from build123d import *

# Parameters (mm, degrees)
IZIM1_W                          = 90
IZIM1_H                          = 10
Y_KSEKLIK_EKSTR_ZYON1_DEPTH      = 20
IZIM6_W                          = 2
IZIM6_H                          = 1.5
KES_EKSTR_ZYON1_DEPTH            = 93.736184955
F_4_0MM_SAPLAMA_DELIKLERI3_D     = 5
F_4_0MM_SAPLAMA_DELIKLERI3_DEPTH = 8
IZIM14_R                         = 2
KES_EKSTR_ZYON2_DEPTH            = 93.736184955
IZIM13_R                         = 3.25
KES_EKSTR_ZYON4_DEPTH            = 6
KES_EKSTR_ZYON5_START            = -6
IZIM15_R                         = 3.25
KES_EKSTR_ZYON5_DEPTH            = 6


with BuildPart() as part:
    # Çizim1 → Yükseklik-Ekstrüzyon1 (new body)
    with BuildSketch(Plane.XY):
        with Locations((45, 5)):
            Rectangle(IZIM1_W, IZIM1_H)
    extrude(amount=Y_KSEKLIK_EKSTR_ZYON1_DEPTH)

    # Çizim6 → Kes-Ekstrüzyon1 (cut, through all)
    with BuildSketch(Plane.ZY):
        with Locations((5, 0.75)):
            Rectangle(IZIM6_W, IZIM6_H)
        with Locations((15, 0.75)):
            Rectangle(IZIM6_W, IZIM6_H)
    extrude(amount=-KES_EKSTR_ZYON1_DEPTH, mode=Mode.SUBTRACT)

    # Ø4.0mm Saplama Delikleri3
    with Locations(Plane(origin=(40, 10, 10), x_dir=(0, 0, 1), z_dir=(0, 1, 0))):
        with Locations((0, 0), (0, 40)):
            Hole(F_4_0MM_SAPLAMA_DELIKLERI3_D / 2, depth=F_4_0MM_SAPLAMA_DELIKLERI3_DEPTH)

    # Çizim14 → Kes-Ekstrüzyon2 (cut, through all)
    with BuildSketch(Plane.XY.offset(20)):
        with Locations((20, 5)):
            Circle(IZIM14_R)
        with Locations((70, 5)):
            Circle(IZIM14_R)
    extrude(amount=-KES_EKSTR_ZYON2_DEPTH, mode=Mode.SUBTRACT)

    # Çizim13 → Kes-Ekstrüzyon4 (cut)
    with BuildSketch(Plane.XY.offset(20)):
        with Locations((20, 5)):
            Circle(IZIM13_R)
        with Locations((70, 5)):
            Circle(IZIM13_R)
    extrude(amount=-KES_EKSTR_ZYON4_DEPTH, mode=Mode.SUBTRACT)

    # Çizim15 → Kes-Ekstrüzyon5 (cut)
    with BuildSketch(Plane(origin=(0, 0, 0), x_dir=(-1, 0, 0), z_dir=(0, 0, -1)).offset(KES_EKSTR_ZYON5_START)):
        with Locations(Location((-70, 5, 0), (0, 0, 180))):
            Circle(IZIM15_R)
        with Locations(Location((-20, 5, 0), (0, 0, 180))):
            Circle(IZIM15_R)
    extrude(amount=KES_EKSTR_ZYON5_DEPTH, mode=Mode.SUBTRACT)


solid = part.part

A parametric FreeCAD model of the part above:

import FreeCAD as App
import Part
import Sketcher
from FreeCAD import Vector
Q = App.Units.Quantity


def add_polygon(sketch, points):
    """Adds a closed chain of lines whose ends are joined by coincident constraints."""
    first, n = sketch.GeometryCount, len(points)
    for a, b in zip(points, points[1:] + points[:1]):
        sketch.addGeometry(Part.LineSegment(App.Vector(*a, 0), App.Vector(*b, 0)), False)
    for i in range(n):
        sketch.addConstraint(Sketcher.Constraint("Coincident", first + i, 2, first + (i + 1) % n, 1))

doc = App.newDocument("Part")
body = doc.addObject("PartDesign::Body", "Body")

sketch1 = body.newObject("Sketcher::SketchObject", "Sketch")
sketch1.AttachmentSupport = (doc.getObject("XY_Plane"), [""])
sketch1.MapMode = "FlatFace"
add_polygon(sketch1, [(0, 10), (0, 0), (90, 0), (90, 10)])
sketch1.addConstraint([
    Sketcher.Constraint("Vertical", 0),
    Sketcher.Constraint("Horizontal", 1),
    Sketcher.Constraint("Vertical", 2),
    Sketcher.Constraint("Horizontal", 3),
    Sketcher.Constraint("Coincident", 0, 2, -1, 1),
    Sketcher.Constraint("DistanceX", 1, 1, 1, 2, Q("90 mm")),
    Sketcher.Constraint("DistanceY", 0, 2, 0, 1, Q("10 mm")),
])
pad1 = body.newObject("PartDesign::Pad", "Pad")
pad1.Profile = sketch1
pad1.Length = 20

sketch2 = body.newObject("Sketcher::SketchObject", "Sketch001")
sketch2.AttachmentSupport = (doc.getObject("YZ_Plane"), [""])
sketch2.MapMode = "FlatFace"
add_polygon(sketch2, [(1.5, 4), (0, 4), (0, 6), (1.5, 6)])
add_polygon(sketch2, [(1.5, 14), (0, 14), (0, 16), (1.5, 16)])
sketch2.addConstraint([
    Sketcher.Constraint("Horizontal", 0),
    Sketcher.Constraint("Vertical", 1),
    Sketcher.Constraint("Horizontal", 2),
    Sketcher.Constraint("Vertical", 3),
    Sketcher.Constraint("Horizontal", 4),
    Sketcher.Constraint("Vertical", 5),
    Sketcher.Constraint("Horizontal", 6),
    Sketcher.Constraint("Vertical", 7),
    Sketcher.Constraint("PointOnObject", 0, 2, -2),
    Sketcher.Constraint("PointOnObject", 4, 2, -2),
    Sketcher.Constraint("Vertical", 3, 2, 6, 2),
    Sketcher.Constraint("Equal", 3, 5),
    Sketcher.Constraint("DistanceY", 1, 1, 1, 2, Q("2 mm")),
    Sketcher.Constraint("DistanceX", 0, 2, 0, 1, Q("1.5 mm")),
    Sketcher.Constraint("DistanceY", -1, 1, 0, 2, Q("4 mm")),
    Sketcher.Constraint("DistanceY", -1, 1, 4, 2, Q("14 mm")),
])
pocket1 = body.newObject("PartDesign::Pocket", "Pocket")
pocket1.Profile = sketch2
pocket1.Type = "ThroughAll"
pocket1.Reversed = True

sketch3 = body.newObject("Sketcher::SketchObject", "Sketch002")
sketch3.AttachmentSupport = (doc.getObject("XZ_Plane"), [""])
sketch3.MapMode = "FlatFace"
sketch3.AttachmentOffset = App.Placement(Vector(0, 0, -10), App.Rotation())
sketch3.addGeometry([
    Part.Circle(Vector(40, 10, 0), Vector(0, 0, 1), 2.5),
    Part.Circle(Vector(80, 10, 0), Vector(0, 0, 1), 2.5),
], False)
sketch3.addConstraint([
    Sketcher.Constraint("Equal", 0, 1),
    Sketcher.Constraint("Horizontal", 0, 3, 1, 3),
    Sketcher.Constraint("Diameter", 0, Q("5 mm")),
    Sketcher.Constraint("DistanceX", -1, 1, 0, 3, Q("40 mm")),
    Sketcher.Constraint("DistanceY", -1, 1, 0, 3, Q("10 mm")),
    Sketcher.Constraint("DistanceX", -1, 1, 1, 3, Q("80 mm")),
])
doc.recompute()
hole = body.newObject("PartDesign::Hole", "Hole")
hole.Profile = sketch3
hole.ThreadType = "None"
hole.Diameter = 5
hole.DepthType = "Dimension"
hole.Depth = 8
hole.DrillPoint = "Flat"
hole.Reversed = True

sketch4 = body.newObject("Sketcher::SketchObject", "Sketch003")
sketch4.AttachmentSupport = (doc.getObject("XY_Plane"), [""])
sketch4.MapMode = "FlatFace"
sketch4.AttachmentOffset = App.Placement(Vector(0, 0, 20), App.Rotation())
sketch4.addGeometry([
    Part.Circle(Vector(20, 5, 0), Vector(0, 0, 1), 2),
    Part.Circle(Vector(70, 5, 0), Vector(0, 0, 1), 2),
], False)
sketch4.addConstraint([
    Sketcher.Constraint("Equal", 0, 1),
    Sketcher.Constraint("Horizontal", 0, 3, 1, 3),
    Sketcher.Constraint("Diameter", 0, Q("4 mm")),
    Sketcher.Constraint("DistanceX", -1, 1, 0, 3, Q("20 mm")),
    Sketcher.Constraint("DistanceY", -1, 1, 0, 3, Q("5 mm")),
    Sketcher.Constraint("DistanceX", -1, 1, 1, 3, Q("70 mm")),
])
pocket2 = body.newObject("PartDesign::Pocket", "Pocket001")
pocket2.Profile = sketch4
pocket2.Type = "ThroughAll"

sketch5 = body.newObject("Sketcher::SketchObject", "Sketch004")
sketch5.AttachmentSupport = (doc.getObject("XY_Plane"), [""])
sketch5.MapMode = "FlatFace"
sketch5.AttachmentOffset = App.Placement(Vector(0, 0, 20), App.Rotation())
sketch5.addGeometry([
    Part.Circle(Vector(20, 5, 0), Vector(0, 0, 1), 3.2),
    Part.Circle(Vector(70, 5, 0), Vector(0, 0, 1), 3.2),
], False)
sketch5.addConstraint([
    Sketcher.Constraint("Equal", 0, 1),
    Sketcher.Constraint("Horizontal", 0, 3, 1, 3),
    Sketcher.Constraint("Diameter", 0, Q("6.5 mm")),
    Sketcher.Constraint("DistanceX", -1, 1, 0, 3, Q("20 mm")),
    Sketcher.Constraint("DistanceY", -1, 1, 0, 3, Q("5 mm")),
    Sketcher.Constraint("DistanceX", -1, 1, 1, 3, Q("70 mm")),
])
pocket3 = body.newObject("PartDesign::Pocket", "Pocket002")
pocket3.Profile = sketch5
pocket3.Length = 6

sketch6 = body.newObject("Sketcher::SketchObject", "Sketch005")
sketch6.AttachmentSupport = (doc.getObject("XY_Plane"), [""])
sketch6.MapMode = "FlatFace"
sketch6.AttachmentOffset = App.Placement(Vector(0, 0, 6), App.Rotation())
sketch6.addGeometry([
    Part.Circle(Vector(70, 5, 0), Vector(0, 0, 1), 3.2),
    Part.Circle(Vector(20, 5, 0), Vector(0, 0, 1), 3.2),
], False)
sketch6.addConstraint([
    Sketcher.Constraint("Equal", 0, 1),
    Sketcher.Constraint("Horizontal", 0, 3, 1, 3),
    Sketcher.Constraint("Diameter", 0, Q("6.5 mm")),
    Sketcher.Constraint("DistanceX", -1, 1, 0, 3, Q("70 mm")),
    Sketcher.Constraint("DistanceY", -1, 1, 0, 3, Q("5 mm")),
    Sketcher.Constraint("DistanceX", -1, 1, 1, 3, Q("20 mm")),
])
pocket4 = body.newObject("PartDesign::Pocket", "Pocket003")
pocket4.Profile = sketch6
pocket4.Length = 6

doc.recompute()
